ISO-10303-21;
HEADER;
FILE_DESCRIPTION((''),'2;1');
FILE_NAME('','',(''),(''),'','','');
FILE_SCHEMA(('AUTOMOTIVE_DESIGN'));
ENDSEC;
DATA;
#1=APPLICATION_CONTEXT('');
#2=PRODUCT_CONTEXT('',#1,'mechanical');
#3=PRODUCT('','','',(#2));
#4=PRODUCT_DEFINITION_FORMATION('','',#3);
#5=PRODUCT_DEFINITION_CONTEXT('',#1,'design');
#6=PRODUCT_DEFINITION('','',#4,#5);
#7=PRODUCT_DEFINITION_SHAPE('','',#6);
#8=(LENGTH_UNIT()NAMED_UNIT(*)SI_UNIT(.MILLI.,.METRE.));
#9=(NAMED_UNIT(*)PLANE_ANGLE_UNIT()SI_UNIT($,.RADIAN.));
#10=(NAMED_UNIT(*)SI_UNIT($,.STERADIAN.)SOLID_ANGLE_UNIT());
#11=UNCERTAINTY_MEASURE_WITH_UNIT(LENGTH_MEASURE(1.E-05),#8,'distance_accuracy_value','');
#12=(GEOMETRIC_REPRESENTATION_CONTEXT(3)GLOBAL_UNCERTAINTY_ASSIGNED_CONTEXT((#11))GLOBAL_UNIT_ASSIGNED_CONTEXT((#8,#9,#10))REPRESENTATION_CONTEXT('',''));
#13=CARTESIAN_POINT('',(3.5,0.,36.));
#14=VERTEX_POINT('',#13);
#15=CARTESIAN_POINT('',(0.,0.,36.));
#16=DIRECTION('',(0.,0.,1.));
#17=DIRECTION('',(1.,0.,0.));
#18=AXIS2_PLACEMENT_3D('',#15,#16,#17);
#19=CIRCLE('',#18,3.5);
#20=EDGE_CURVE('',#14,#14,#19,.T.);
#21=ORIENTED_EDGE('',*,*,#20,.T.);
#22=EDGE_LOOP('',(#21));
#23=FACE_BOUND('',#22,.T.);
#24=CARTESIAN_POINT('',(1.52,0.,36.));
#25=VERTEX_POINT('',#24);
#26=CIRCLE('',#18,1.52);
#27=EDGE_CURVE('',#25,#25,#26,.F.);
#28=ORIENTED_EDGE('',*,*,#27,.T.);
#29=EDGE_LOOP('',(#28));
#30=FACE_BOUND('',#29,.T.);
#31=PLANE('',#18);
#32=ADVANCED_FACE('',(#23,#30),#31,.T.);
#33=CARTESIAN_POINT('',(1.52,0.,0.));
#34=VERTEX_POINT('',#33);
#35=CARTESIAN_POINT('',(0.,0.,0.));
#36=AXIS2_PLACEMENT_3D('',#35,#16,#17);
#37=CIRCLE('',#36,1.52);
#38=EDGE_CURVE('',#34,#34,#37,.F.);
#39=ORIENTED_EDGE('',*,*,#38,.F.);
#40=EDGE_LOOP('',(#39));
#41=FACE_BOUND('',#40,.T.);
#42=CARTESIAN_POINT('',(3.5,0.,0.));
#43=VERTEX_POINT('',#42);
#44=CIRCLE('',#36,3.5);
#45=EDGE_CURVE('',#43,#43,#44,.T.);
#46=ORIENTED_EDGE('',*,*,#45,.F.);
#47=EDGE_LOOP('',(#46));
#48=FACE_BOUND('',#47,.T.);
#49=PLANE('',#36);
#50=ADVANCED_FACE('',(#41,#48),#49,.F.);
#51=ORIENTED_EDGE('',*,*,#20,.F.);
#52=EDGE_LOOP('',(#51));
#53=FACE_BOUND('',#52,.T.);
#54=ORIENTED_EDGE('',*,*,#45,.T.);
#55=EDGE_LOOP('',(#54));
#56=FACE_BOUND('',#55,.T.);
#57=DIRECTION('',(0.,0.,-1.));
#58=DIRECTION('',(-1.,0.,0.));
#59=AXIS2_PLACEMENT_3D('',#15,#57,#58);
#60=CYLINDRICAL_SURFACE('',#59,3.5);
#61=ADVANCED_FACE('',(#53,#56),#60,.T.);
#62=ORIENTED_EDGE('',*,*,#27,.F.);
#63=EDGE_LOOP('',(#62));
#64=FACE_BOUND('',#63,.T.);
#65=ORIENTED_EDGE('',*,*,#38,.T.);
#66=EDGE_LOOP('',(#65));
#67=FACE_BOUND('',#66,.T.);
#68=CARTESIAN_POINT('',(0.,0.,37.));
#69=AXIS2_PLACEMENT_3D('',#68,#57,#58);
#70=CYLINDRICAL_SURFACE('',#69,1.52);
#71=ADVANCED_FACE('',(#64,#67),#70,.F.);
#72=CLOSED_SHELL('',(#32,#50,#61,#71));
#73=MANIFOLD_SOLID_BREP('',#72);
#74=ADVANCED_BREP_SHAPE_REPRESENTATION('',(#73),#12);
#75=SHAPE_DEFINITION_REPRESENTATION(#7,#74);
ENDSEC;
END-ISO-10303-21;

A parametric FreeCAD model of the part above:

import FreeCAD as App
import Part
import Sketcher
from FreeCAD import Vector
Q = App.Units.Quantity

doc = App.newDocument("Part")
body = doc.addObject("PartDesign::Body", "Body")

# Sketch on XY plane
sketch1 = body.newObject("Sketcher::SketchObject", "Sketch")
sketch1.AttachmentSupport = (doc.getObject("XY_Plane"), [""])
sketch1.MapMode = "FlatFace"
sketch1.addGeometry(Part.Circle(Vector(0, 0, 0), Vector(0, 0, 1), 3.5), False)
sketch1.addConstraint([
    Sketcher.Constraint("Coincident", 0, 3, -1, 1),
    Sketcher.Constraint("Diameter", 0, Q("7 mm")),
])
pad1 = body.newObject("PartDesign::Pad", "Pad")
pad1.Profile = sketch1
pad1.Length = 36

# Sketch on XY plane
sketch2 = body.newObject("Sketcher::SketchObject", "Sketch001")
sketch2.AttachmentSupport = (doc.getObject("XY_Plane"), [""])
sketch2.MapMode = "FlatFace"
sketch2.AttachmentOffset = App.Placement(Vector(0, 0, -1), App.Rotation())
sketch2.addGeometry(Part.Circle(Vector(0, 0, 0), Vector(0, 0, 1), 1.52), False)
sketch2.addConstraint([
    Sketcher.Constraint("Coincident", 0, 3, -1, 1),
    Sketcher.Constraint("Diameter", 0, Q("3.04 mm")),
])
pocket1 = body.newObject("PartDesign::Pocket", "Pocket")
pocket1.Profile = sketch2
pocket1.Length = 38
pocket1.Reversed = True

doc.recompute()
